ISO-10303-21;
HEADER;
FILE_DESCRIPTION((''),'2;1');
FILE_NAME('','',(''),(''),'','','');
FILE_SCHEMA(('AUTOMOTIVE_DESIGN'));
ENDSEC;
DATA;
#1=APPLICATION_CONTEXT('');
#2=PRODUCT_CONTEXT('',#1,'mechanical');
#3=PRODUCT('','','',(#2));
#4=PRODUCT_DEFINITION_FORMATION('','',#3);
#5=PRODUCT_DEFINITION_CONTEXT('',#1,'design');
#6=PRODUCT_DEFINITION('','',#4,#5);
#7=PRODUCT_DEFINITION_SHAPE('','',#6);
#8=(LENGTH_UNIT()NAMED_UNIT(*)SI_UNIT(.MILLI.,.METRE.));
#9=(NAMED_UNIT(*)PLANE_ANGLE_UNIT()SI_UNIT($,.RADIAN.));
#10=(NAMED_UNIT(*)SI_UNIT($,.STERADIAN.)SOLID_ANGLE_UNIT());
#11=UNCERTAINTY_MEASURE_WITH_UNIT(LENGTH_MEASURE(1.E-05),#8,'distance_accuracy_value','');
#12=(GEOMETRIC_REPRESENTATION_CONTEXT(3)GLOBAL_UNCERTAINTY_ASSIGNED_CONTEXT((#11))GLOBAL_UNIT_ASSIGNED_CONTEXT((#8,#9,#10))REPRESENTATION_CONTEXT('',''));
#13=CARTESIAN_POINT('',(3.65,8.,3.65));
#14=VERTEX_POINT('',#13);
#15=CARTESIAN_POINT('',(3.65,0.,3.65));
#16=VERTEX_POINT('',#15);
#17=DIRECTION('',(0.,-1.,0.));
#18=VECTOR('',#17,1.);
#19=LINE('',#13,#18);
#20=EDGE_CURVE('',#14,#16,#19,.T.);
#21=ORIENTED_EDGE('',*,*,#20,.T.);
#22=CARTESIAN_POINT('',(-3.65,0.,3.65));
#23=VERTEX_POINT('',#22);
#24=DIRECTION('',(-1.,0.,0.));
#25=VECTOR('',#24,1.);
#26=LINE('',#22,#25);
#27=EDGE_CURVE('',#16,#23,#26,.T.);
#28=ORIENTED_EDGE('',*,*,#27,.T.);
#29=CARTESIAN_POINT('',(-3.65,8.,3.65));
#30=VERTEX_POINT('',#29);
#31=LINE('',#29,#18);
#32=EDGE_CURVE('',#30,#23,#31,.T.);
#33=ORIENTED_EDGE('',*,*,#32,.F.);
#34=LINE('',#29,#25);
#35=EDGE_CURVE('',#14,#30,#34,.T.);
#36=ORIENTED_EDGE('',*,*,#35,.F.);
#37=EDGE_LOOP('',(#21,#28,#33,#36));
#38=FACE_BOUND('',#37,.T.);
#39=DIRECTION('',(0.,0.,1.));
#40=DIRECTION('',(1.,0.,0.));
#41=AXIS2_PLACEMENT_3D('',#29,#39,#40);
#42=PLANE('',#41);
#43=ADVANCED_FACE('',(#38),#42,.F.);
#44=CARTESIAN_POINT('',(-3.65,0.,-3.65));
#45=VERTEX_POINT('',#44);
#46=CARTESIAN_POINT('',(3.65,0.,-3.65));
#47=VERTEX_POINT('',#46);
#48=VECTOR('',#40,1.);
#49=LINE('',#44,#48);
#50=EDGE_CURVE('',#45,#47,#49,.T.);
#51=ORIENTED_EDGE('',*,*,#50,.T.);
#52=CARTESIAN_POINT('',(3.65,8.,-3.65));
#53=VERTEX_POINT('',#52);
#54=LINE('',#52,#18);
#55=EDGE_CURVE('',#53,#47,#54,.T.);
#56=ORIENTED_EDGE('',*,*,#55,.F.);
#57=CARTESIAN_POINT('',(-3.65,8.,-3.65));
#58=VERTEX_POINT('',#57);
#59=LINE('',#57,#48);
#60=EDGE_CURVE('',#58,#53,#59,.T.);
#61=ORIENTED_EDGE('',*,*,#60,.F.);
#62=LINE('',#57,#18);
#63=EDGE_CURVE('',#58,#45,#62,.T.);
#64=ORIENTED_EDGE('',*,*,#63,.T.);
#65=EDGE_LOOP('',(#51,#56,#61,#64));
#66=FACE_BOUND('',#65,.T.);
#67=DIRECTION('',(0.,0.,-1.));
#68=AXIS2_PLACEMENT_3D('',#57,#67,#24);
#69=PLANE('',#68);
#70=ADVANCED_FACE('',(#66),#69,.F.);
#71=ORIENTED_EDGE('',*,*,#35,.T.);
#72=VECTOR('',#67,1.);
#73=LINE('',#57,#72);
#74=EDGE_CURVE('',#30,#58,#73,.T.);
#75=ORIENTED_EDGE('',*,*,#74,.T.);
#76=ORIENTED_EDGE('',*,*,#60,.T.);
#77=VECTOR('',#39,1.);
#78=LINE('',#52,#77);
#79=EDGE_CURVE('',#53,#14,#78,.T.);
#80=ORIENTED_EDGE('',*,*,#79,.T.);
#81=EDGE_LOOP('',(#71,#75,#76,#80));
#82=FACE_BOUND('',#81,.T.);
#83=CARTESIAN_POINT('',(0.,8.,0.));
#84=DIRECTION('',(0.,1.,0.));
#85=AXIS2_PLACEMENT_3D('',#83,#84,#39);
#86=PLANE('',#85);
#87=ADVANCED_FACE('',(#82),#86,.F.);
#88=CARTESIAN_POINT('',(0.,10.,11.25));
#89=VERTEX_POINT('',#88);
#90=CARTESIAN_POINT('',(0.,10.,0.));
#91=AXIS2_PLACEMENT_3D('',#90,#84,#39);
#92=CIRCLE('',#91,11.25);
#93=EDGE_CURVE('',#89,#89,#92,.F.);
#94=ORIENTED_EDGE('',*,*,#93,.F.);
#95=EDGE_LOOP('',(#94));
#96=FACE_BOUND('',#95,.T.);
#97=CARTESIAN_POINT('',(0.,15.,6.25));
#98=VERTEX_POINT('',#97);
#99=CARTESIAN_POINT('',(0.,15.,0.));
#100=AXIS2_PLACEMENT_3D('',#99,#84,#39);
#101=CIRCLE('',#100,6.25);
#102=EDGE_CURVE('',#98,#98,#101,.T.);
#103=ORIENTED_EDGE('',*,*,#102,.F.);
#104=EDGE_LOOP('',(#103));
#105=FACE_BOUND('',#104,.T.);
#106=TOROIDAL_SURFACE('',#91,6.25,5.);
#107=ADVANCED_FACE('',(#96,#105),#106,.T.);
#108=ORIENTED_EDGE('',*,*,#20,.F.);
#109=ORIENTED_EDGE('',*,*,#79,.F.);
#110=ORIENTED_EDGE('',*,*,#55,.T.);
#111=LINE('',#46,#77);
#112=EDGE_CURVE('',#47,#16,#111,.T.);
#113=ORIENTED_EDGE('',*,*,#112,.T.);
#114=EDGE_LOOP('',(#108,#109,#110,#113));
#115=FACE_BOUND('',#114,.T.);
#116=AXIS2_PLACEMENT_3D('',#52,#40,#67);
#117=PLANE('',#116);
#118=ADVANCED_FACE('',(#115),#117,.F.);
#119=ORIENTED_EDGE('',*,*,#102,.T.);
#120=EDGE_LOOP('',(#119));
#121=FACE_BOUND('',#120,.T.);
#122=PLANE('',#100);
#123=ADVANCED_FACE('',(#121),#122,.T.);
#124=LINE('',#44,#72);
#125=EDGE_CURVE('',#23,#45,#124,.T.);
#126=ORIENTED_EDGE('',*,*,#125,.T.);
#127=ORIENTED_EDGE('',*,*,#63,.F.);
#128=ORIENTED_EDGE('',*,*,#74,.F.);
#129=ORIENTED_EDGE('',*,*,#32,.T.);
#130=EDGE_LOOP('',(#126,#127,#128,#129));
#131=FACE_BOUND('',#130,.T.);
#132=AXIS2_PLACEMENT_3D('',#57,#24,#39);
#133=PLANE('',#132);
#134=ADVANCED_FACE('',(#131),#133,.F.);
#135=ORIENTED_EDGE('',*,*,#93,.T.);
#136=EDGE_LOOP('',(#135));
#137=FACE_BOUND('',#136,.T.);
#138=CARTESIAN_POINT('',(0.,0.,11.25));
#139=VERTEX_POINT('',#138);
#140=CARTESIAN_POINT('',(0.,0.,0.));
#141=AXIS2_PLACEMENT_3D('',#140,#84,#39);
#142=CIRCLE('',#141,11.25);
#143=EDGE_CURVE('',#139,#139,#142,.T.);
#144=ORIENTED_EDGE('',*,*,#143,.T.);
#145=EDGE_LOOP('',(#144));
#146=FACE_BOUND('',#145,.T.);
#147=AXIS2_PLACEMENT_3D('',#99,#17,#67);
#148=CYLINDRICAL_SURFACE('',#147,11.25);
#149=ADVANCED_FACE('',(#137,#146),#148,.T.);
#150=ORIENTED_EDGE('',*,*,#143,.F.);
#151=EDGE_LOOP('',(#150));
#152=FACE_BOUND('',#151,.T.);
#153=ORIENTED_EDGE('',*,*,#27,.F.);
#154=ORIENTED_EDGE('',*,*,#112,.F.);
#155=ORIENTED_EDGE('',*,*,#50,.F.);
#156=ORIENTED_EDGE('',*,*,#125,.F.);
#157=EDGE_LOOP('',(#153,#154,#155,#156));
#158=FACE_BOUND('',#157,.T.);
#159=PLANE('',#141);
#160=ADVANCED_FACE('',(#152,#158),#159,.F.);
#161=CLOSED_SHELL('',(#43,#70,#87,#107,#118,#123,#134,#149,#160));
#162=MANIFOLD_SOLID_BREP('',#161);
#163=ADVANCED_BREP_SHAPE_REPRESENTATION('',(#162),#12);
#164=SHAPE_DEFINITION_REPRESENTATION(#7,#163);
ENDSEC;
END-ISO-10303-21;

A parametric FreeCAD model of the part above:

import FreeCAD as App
import Part
import Sketcher


def edges_at(feature, points):
    """Names of the edges that pass closest to the given points."""
    edges = feature.Shape.Edges
    near = lambda p: min(range(len(edges)), key=lambda i: edges[i].distToShape(Part.Vertex(*p))[0])
    return sorted({f"Edge{near(p) + 1}" for p in points})

doc = App.newDocument("Part")
params = doc.addObject("Spreadsheet::Sheet", "Params")
for row, (alias, value) in enumerate([
    ("sketch1_diameter", "22.5 mm"),
    ("pad1_length", "15 mm"),
    ("fillet_radius", "5 mm"),
    ("sketch2_width", "7.3 mm"),
    ("pocket1_length", "8 mm"),
], start=1):
    params.set(f"A{row}", alias)
    params.set(f"B{row}", "=" + value)
    params.setAlias(f"B{row}", alias)

body = doc.addObject("PartDesign::Body", "Body")

# Sketch on XZ plane
sketch1 = doc.addObject("Sketcher::SketchObject", "Sketch")
body.addObject(sketch1)
sketch1.AttachmentSupport = (doc.XZ_Plane, [""])
sketch1.MapMode = "FlatFace"
sketch1.addGeometry(Part.Circle(App.Vector(0, 0, 0), App.Vector(0, 0, 1), 11), False)
sketch1.addConstraint([
    Sketcher.Constraint("Coincident", 0, 3, -1, 1),
    Sketcher.Constraint("Diameter", 0, 22.5),
])
sketch1.setExpression("Constraints[1]", "Params.sketch1_diameter")
pad1 = doc.addObject("PartDesign::Pad", "Pad")
body.addObject(pad1)
pad1.Profile = sketch1
pad1.setExpression("Length", "Params.pad1_length")
pad1.Reversed = True
doc.recompute()

fillet = doc.addObject("PartDesign::Fillet", "Fillet")
body.addObject(fillet)
fillet.Base = (pad1, edges_at(pad1, [(0, 15, -11.25)]))
fillet.setExpression("Radius", "Params.fillet_radius")

# Sketch on XZ plane
sketch2 = doc.addObject("Sketcher::SketchObject", "Sketch001")
body.addObject(sketch2)
sketch2.AttachmentSupport = (doc.XZ_Plane, [""])
sketch2.MapMode = "FlatFace"
sketch2.addGeometry([
    Part.LineSegment(App.Vector(-4, 4, 0), App.Vector(-4, -4, 0)),
    Part.LineSegment(App.Vector(-4, -4, 0), App.Vector(4, -4, 0)),
    Part.LineSegment(App.Vector(4, -4, 0), App.Vector(4, 4, 0)),
    Part.LineSegment(App.Vector(4, 4, 0), App.Vector(-4, 4, 0)),
], False)
sketch2.addConstraint([
    Sketcher.Constraint("Coincident", 0, 2, 1, 1),
    Sketcher.Constraint("Coincident", 1, 2, 2, 1),
    Sketcher.Constraint("Coincident", 2, 2, 3, 1),
    Sketcher.Constraint("Coincident", 3, 2, 0, 1),
    Sketcher.Constraint("Vertical", 0),
    Sketcher.Constraint("Horizontal", 1),
    Sketcher.Constraint("Vertical", 2),
    Sketcher.Constraint("Horizontal", 3),
    Sketcher.Constraint("Symmetric", 0, 2, 2, 2, -1, 1),
    Sketcher.Constraint("Equal", 3, 0),
    Sketcher.Constraint("DistanceX", 1, 1, 1, 2, 7.3),
])
sketch2.setExpression("Constraints[10]", "Params.sketch2_width")
pocket1 = doc.addObject("PartDesign::Pocket", "Pocket")
body.addObject(pocket1)
pocket1.Profile = sketch2
pocket1.setExpression("Length", "Params.pocket1_length")

doc.recompute()
